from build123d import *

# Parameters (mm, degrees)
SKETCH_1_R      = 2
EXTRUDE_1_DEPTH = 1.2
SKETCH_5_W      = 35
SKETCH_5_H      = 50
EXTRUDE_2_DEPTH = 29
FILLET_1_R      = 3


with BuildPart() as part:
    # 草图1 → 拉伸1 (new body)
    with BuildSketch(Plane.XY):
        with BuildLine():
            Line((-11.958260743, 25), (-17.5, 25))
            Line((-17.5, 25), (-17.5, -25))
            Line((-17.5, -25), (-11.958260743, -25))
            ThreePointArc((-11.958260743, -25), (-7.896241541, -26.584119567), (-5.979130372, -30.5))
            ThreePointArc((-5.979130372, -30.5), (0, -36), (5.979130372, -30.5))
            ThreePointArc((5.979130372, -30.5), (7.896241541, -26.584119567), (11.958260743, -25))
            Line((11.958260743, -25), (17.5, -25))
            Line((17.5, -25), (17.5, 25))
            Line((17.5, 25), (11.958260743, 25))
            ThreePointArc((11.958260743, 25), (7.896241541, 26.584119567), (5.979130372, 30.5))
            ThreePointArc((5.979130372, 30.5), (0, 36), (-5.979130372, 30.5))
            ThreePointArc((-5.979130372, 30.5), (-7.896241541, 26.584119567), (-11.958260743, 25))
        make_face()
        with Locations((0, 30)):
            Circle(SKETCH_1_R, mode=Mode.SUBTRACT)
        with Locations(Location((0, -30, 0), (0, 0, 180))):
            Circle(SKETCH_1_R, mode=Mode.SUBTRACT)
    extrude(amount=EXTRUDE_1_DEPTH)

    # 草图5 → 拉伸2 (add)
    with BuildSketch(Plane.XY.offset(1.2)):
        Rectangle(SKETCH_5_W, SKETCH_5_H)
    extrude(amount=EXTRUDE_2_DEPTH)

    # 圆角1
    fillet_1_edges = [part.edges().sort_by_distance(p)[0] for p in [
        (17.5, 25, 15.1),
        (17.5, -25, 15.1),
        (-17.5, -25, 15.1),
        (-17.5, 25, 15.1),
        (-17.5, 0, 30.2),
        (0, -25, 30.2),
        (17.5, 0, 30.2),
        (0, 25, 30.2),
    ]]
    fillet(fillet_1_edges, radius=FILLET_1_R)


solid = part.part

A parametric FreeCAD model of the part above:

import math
import FreeCAD as App
import Part
import Sketcher
from FreeCAD import Vector
Q = App.Units.Quantity


def edges_at(feature, points):
    """Names of the edges that pass closest to the given points."""
    edges = feature.Shape.Edges
    near = lambda p: min(range(len(edges)), key=lambda i: edges[i].distToShape(Part.Vertex(*p))[0])
    return sorted({f"Edge{near(p) + 1}" for p in points})

doc = App.newDocument("Part")
body = doc.addObject("PartDesign::Body", "Body")

sketch1 = body.newObject("Sketcher::SketchObject", "Sketch")
sketch1.AttachmentSupport = (doc.getObject("XY_Plane"), [""])
sketch1.MapMode = "FlatFace"
sketch1.addGeometry([
    Part.LineSegment(Vector(-11.958261, 25, 0), Vector(-17.5, 25, 0)),
    Part.LineSegment(Vector(-17.5, 25, 0), Vector(-17.5, -25, 0)),
    Part.LineSegment(Vector(-17.5, -25, 0), Vector(-11.958261, -25, 0)),
    Part.ArcOfCircle(Part.Circle(Vector(-11.958261, -31, 0), Vector(0, 0, 1), 6), math.radians(4.780192), math.radians(90)),
    Part.ArcOfCircle(Part.Circle(Vector(0, -30, 0), Vector(0, 0, 1), 6), math.radians(-175.219808), math.radians(-4.780192)),
    Part.ArcOfCircle(Part.Circle(Vector(11.958261, -31, 0), Vector(0, 0, 1), 6), math.radians(90), math.radians(175.219808)),
    Part.LineSegment(Vector(11.958261, -25, 0), Vector(17.5, -25, 0)),
    Part.LineSegment(Vector(17.5, -25, 0), Vector(17.5, 25, 0)),
    Part.LineSegment(Vector(17.5, 25, 0), Vector(11.958261, 25, 0)),
    Part.ArcOfCircle(Part.Circle(Vector(11.958261, 31, 0), Vector(0, 0, 1), 6), math.radians(-175.219808), math.radians(-90)),
    Part.ArcOfCircle(Part.Circle(Vector(0, 30, 0), Vector(0, 0, 1), 6), math.radians(4.780192), math.radians(175.219808)),
    Part.ArcOfCircle(Part.Circle(Vector(-11.958261, 31, 0), Vector(0, 0, 1), 6), math.radians(-90), math.radians(-4.780192)),
    Part.Circle(Vector(0, -30, 0), Vector(0, 0, 1), 2),
    Part.Circle(Vector(0, 30, 0), Vector(0, 0, 1), 2),
], False)
sketch1.addConstraint([
    Sketcher.Constraint("Coincident", 0, 2, 1, 1),
    Sketcher.Constraint("Coincident", 1, 2, 2, 1),
    Sketcher.Constraint("Tangent", 2, 2, 3, 2),
    Sketcher.Constraint("Tangent", 3, 1, 4, 1),
    Sketcher.Constraint("Tangent", 4, 2, 5, 2),
    Sketcher.Constraint("Tangent", 5, 1, 6, 1),
    Sketcher.Constraint("Coincident", 6, 2, 7, 1),
    Sketcher.Constraint("Coincident", 7, 2, 8, 1),
    Sketcher.Constraint("Tangent", 8, 2, 9, 2),
    Sketcher.Constraint("Tangent", 9, 1, 10, 1),
    Sketcher.Constraint("Tangent", 10, 2, 11, 2),
    Sketcher.Constraint("Tangent", 11, 1, 0, 1),
    Sketcher.Constraint("Horizontal", 0),
    Sketcher.Constraint("Vertical", 1),
    Sketcher.Constraint("Horizontal", 2),
    Sketcher.Constraint("Horizontal", 6),
    Sketcher.Constraint("Vertical", 7),
    Sketcher.Constraint("Horizontal", 8),
    Sketcher.Constraint("Coincident", 12, 3, 4, 3),
    Sketcher.Constraint("Coincident", 13, 3, 10, 3),
    Sketcher.Constraint("Equal", 3, 4),
    Sketcher.Constraint("Equal", 4, 5),
    Sketcher.Constraint("Equal", 5, 9),
    Sketcher.Constraint("Equal", 9, 10),
    Sketcher.Constraint("Equal", 10, 11),
    Sketcher.Constraint("Equal", 12, 13),
    Sketcher.Constraint("Symmetric", 3, 3, 9, 3, -1, 1),
    Sketcher.Constraint("Symmetric", 5, 3, 11, 3, -1, 1),
    Sketcher.Constraint("Symmetric", 3, 3, 5, 3, -2),
    Sketcher.Constraint("Equal", 2, 6),
    Sketcher.Constraint("Diameter", 12, Q("4 mm")),
    Sketcher.Constraint("Radius", 3, Q("6 mm")),
    Sketcher.Constraint("DistanceY", 1, 2, 1, 1, Q("50 mm")),
    Sketcher.Constraint("DistanceY", 4, 3, -1, 1, Q("30 mm")),
    Sketcher.Constraint("DistanceX", 0, 2, 7, 2, Q("35 mm")),
])
pad1 = body.newObject("PartDesign::Pad", "Pad")
pad1.Profile = sketch1
pad1.Length = 1.2

sketch2 = body.newObject("Sketcher::SketchObject", "Sketch001")
sketch2.AttachmentSupport = (doc.getObject("XY_Plane"), [""])
sketch2.MapMode = "FlatFace"
sketch2.AttachmentOffset = App.Placement(Vector(0, 0, 1.2), App.Rotation())
sketch2.addGeometry([
    Part.LineSegment(Vector(-17.5, 25, 0), Vector(-17.5, -25, 0)),
    Part.LineSegment(Vector(-17.5, -25, 0), Vector(17.5, -25, 0)),
    Part.LineSegment(Vector(17.5, -25, 0), Vector(17.5, 25, 0)),
    Part.LineSegment(Vector(17.5, 25, 0), Vector(-17.5, 25, 0)),
], False)
sketch2.addConstraint([
    Sketcher.Constraint("Coincident", 0, 2, 1, 1),
    Sketcher.Constraint("Coincident", 1, 2, 2, 1),
    Sketcher.Constraint("Coincident", 2, 2, 3, 1),
    Sketcher.Constraint("Coincident", 3, 2, 0, 1),
    Sketcher.Constraint("Vertical", 0),
    Sketcher.Constraint("Horizontal", 1),
    Sketcher.Constraint("Vertical", 2),
    Sketcher.Constraint("Horizontal", 3),
    Sketcher.Constraint("Symmetric", 0, 2, 2, 2, -1, 1),
    Sketcher.Constraint("DistanceX", 1, 1, 1, 2, Q("35 mm")),
    Sketcher.Constraint("DistanceY", 0, 2, 0, 1, Q("50 mm")),
])
pad2 = body.newObject("PartDesign::Pad", "Pad001")
pad2.Profile = sketch2
pad2.Length = 29
doc.recompute()

fillet = body.newObject("PartDesign::Fillet", "Fillet")
fillet.Base = (pad2, edges_at(pad2, [
    (17.5, 25, 15.1),
    (17.5, -25, 15.1),
    (-17.5, -25, 15.1),
    (-17.5, 25, 15.1),
    (-17.5, 0, 30.2),
    (0, -25, 30.2),
    (17.5, 0, 30.2),
    (0, 25, 30.2),
]))
fillet.Radius = 3

doc.recompute()
